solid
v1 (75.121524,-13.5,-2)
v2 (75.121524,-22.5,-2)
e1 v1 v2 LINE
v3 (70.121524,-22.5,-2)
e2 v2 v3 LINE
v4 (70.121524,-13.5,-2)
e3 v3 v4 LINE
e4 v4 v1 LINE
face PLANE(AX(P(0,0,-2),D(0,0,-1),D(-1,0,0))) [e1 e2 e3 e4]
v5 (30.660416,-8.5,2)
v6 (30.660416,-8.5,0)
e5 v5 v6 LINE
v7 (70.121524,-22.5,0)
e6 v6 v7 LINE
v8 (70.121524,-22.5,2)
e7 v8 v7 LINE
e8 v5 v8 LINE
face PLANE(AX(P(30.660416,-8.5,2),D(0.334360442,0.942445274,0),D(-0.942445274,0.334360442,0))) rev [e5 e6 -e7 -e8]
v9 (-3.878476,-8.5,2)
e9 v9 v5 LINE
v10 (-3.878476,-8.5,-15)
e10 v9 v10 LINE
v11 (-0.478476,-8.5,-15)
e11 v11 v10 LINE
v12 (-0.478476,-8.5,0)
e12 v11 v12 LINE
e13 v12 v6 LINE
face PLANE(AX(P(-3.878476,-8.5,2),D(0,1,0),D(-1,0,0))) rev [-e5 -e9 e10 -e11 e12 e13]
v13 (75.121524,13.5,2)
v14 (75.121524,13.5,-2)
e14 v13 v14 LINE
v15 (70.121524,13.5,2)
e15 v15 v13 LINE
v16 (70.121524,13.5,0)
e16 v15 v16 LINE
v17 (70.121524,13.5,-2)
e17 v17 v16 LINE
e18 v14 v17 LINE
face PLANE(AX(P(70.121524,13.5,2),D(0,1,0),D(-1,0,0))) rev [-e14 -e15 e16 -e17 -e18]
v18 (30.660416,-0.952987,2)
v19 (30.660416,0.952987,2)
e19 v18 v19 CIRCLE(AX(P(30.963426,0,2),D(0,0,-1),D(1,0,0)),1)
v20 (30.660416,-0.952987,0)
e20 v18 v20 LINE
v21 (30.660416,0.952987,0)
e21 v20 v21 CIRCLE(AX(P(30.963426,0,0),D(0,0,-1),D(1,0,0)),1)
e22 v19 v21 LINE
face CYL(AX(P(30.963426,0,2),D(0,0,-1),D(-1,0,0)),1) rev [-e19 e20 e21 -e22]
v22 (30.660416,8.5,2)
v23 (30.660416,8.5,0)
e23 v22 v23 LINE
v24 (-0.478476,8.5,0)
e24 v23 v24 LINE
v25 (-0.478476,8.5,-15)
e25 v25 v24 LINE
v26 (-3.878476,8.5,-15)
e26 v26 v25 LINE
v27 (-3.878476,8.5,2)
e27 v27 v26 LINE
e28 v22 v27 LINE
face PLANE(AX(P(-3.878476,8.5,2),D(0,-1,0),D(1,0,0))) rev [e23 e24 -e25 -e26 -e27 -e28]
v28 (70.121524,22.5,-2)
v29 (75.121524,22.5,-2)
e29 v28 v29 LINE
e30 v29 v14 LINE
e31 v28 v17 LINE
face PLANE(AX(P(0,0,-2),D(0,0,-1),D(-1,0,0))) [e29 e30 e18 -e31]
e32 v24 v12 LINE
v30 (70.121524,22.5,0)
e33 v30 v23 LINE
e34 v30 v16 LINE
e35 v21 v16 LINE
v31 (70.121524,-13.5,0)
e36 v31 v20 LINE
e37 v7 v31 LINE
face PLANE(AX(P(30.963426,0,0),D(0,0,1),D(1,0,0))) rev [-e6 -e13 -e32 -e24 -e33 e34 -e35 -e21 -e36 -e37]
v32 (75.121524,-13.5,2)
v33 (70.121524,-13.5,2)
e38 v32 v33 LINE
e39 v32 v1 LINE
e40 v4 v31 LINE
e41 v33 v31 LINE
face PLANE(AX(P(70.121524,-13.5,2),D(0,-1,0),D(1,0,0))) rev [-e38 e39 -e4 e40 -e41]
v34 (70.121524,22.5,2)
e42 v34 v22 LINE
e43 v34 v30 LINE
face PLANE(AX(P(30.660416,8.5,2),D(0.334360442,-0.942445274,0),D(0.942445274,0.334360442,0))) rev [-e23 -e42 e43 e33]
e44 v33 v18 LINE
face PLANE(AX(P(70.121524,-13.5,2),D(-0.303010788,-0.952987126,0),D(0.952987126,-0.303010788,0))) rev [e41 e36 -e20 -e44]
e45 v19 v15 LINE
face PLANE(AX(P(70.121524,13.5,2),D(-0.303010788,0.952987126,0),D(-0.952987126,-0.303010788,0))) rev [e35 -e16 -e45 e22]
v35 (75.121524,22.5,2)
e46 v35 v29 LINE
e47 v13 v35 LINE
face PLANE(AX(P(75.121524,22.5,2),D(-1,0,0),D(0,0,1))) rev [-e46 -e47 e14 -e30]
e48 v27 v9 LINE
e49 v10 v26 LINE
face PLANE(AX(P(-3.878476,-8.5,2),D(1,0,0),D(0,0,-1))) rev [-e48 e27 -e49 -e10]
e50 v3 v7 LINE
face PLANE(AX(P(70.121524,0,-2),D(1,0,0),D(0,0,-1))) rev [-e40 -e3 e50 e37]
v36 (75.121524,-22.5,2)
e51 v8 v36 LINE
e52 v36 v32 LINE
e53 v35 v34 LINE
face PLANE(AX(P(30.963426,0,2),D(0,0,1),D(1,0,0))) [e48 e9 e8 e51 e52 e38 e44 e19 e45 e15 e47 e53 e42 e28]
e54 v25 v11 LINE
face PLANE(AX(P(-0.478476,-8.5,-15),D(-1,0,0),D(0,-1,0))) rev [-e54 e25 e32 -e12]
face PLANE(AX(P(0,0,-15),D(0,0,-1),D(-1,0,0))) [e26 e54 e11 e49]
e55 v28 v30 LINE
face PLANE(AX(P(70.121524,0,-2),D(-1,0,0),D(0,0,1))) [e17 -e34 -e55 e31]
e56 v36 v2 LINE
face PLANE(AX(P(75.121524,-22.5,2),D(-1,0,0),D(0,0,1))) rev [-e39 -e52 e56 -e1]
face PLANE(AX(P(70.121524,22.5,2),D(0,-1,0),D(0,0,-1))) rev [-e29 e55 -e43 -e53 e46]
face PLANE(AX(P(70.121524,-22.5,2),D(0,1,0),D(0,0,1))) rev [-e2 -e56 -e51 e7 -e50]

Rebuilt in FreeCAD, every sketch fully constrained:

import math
import FreeCAD as App
import Part
import Sketcher

V = App.Vector

doc = App.newDocument("Part")
body = doc.addObject("PartDesign::Body", "Body")

sketch1 = body.newObject("Sketcher::SketchObject", "Sketch")
sketch1.AttachmentSupport = (doc.getObject("XY_Plane"), [""])
sketch1.MapMode = "FlatFace"
sketch1.addGeometry(Part.LineSegment(V(70.1, 22.5, 0), V(30.7, 8.5, 0)), False)
sketch1.addGeometry(Part.LineSegment(V(30.7, 8.5, 0), V(-3.9, 8.5, 0)), False)
sketch1.addGeometry(Part.LineSegment(V(-3.9, 8.5, 0), V(-3.9, -8.5, 0)), False)
sketch1.addGeometry(Part.LineSegment(V(-3.9, -8.5, 0), V(30.7, -8.5, 0)), False)
sketch1.addGeometry(Part.LineSegment(V(30.7, -8.5, 0), V(70.1, -22.5, 0)), False)
sketch1.addGeometry(Part.LineSegment(V(70.1, -22.5, 0), V(75.1, -22.5, 0)), False)
sketch1.addGeometry(Part.LineSegment(V(75.1, -22.5, 0), V(75.1, -13.5, 0)), False)
sketch1.addGeometry(Part.LineSegment(V(75.1, -13.5, 0), V(70.1, -13.5, 0)), False)
sketch1.addGeometry(Part.LineSegment(V(70.1, -13.5, 0), V(30.7, -1, 0)), False)
sketch1.addGeometry(Part.ArcOfCircle(Part.Circle(V(31, 0, 0), V(0, 0, 1), 1), math.radians(108), math.radians(252)), False)
sketch1.addGeometry(Part.LineSegment(V(30.7, 1, 0), V(70.1, 13.5, 0)), False)
sketch1.addGeometry(Part.LineSegment(V(70.1, 13.5, 0), V(75.1, 13.5, 0)), False)
sketch1.addGeometry(Part.LineSegment(V(75.1, 13.5, 0), V(75.1, 22.5, 0)), False)
sketch1.addGeometry(Part.LineSegment(V(75.1, 22.5, 0), V(70.1, 22.5, 0)), False)
sketch1.addConstraint(Sketcher.Constraint("Coincident", 0, 2, 1, 1))
sketch1.addConstraint(Sketcher.Constraint("Coincident", 1, 2, 2, 1))
sketch1.addConstraint(Sketcher.Constraint("Coincident", 2, 2, 3, 1))
sketch1.addConstraint(Sketcher.Constraint("Coincident", 3, 2, 4, 1))
sketch1.addConstraint(Sketcher.Constraint("Coincident", 4, 2, 5, 1))
sketch1.addConstraint(Sketcher.Constraint("Coincident", 5, 2, 6, 1))
sketch1.addConstraint(Sketcher.Constraint("Coincident", 6, 2, 7, 1))
sketch1.addConstraint(Sketcher.Constraint("Coincident", 7, 2, 8, 1))
sketch1.addConstraint(Sketcher.Constraint("Tangent", 8, 2, 9, 2))
sketch1.addConstraint(Sketcher.Constraint("Tangent", 9, 1, 10, 1))
sketch1.addConstraint(Sketcher.Constraint("Coincident", 10, 2, 11, 1))
sketch1.addConstraint(Sketcher.Constraint("Coincident", 11, 2, 12, 1))
sketch1.addConstraint(Sketcher.Constraint("Coincident", 12, 2, 13, 1))
sketch1.addConstraint(Sketcher.Constraint("Coincident", 13, 2, 0, 1))
sketch1.addConstraint(Sketcher.Constraint("Horizontal", 1))
sketch1.addConstraint(Sketcher.Constraint("Vertical", 2))
sketch1.addConstraint(Sketcher.Constraint("Horizontal", 3))
sketch1.addConstraint(Sketcher.Constraint("Horizontal", 5))
sketch1.addConstraint(Sketcher.Constraint("Vertical", 6))
sketch1.addConstraint(Sketcher.Constraint("Horizontal", 7))
sketch1.addConstraint(Sketcher.Constraint("Horizontal", 11))
sketch1.addConstraint(Sketcher.Constraint("Vertical", 12))
sketch1.addConstraint(Sketcher.Constraint("Horizontal", 13))
sketch1.addConstraint(Sketcher.Constraint("Symmetric", 0, 2, 3, 2, -1))
sketch1.addConstraint(Sketcher.Constraint("Symmetric", 8, 2, 9, 1, -1))
sketch1.addConstraint(Sketcher.Constraint("Symmetric", 6, 2, 11, 2, -1))
sketch1.addConstraint(Sketcher.Constraint("Symmetric", 4, 2, 13, 2, -1))
sketch1.addConstraint(Sketcher.Constraint("Vertical", 4, 2, 7, 2))
sketch1.addConstraint(Sketcher.Constraint("Vertical", 3, 2, 8, 2))
sketch1.addConstraint(Sketcher.Constraint("Radius", 9, 1.0))
sketch1.addConstraint(Sketcher.Constraint("DistanceX", 5, 1, 5, 2, 5.0))
sketch1.addConstraint(Sketcher.Constraint("DistanceY", 2, 2, 2, 1, 17.0))
sketch1.addConstraint(Sketcher.Constraint("DistanceY", 6, 1, 6, 2, 9.0))
sketch1.addConstraint(Sketcher.Constraint("DistanceY", 4, 2, 3, 2, 14.0))
sketch1.addConstraint(Sketcher.Constraint("DistanceX", 2, 2, 4, 2, 74.0))
sketch1.addConstraint(Sketcher.Constraint("DistanceX", 1, 2, 1, 1, 34.538891))
sketch1.addConstraint(Sketcher.Constraint("DistanceX", -1, 1, 9, 3, 30.963426))
pad1 = body.newObject("PartDesign::Pad", "Pad")
pad1.Profile = sketch1
pad1.Length = 2

sketch2 = body.newObject("Sketcher::SketchObject", "Sketch001")
sketch2.AttachmentSupport = (doc.getObject("XY_Plane"), [""])
sketch2.MapMode = "FlatFace"
sketch2.addGeometry(Part.LineSegment(V(-0.5, 8.5, 0), V(-0.5, -8.5, 0)), False)
sketch2.addGeometry(Part.LineSegment(V(-0.5, -8.5, 0), V(-3.9, -8.5, 0)), False)
sketch2.addGeometry(Part.LineSegment(V(-3.9, -8.5, 0), V(-3.9, 8.5, 0)), False)
sketch2.addGeometry(Part.LineSegment(V(-3.9, 8.5, 0), V(-0.5, 8.5, 0)), False)
sketch2.addConstraint(Sketcher.Constraint("Coincident", 0, 2, 1, 1))
sketch2.addConstraint(Sketcher.Constraint("Coincident", 1, 2, 2, 1))
sketch2.addConstraint(Sketcher.Constraint("Coincident", 2, 2, 3, 1))
sketch2.addConstraint(Sketcher.Constraint("Coincident", 3, 2, 0, 1))
sketch2.addConstraint(Sketcher.Constraint("Vertical", 0))
sketch2.addConstraint(Sketcher.Constraint("Horizontal", 1))
sketch2.addConstraint(Sketcher.Constraint("Vertical", 2))
sketch2.addConstraint(Sketcher.Constraint("Horizontal", 3))
sketch2.addConstraint(Sketcher.Constraint("DistanceY", 0, 2, 0, 1, 17.0))
sketch2.addConstraint(Sketcher.Constraint("DistanceX", 1, 2, 1, 1, 3.4))
sketch2.addConstraint(Sketcher.Constraint("DistanceY", 0, 2, -1, 1, 8.5))
sketch2.addConstraint(Sketcher.Constraint("DistanceX", 0, 2, -1, 1, 0.478476))
pad2 = body.newObject("PartDesign::Pad", "Pad001")
pad2.Profile = sketch2
pad2.Length = 15
pad2.Reversed = True

sketch3 = body.newObject("Sketcher::SketchObject", "Sketch002")
sketch3.AttachmentSupport = (doc.getObject("XY_Plane"), [""])
sketch3.MapMode = "FlatFace"
sketch3.addGeometry(Part.LineSegment(V(75, -14, 0), V(75, -22, 0)), False)
sketch3.addGeometry(Part.LineSegment(V(75, -22, 0), V(70, -22, 0)), False)
sketch3.addGeometry(Part.LineSegment(V(70, -22, 0), V(70, -14, 0)), False)
sketch3.addGeometry(Part.LineSegment(V(70, -14, 0), V(75, -14, 0)), False)
sketch3.addGeometry(Part.LineSegment(V(75, 22, 0), V(75, 14, 0)), False)
sketch3.addGeometry(Part.LineSegment(V(75, 14, 0), V(70, 14, 0)), False)
sketch3.addGeometry(Part.LineSegment(V(70, 14, 0), V(70, 22, 0)), False)
sketch3.addGeometry(Part.LineSegment(V(70, 22, 0), V(75, 22, 0)), False)
sketch3.addConstraint(Sketcher.Constraint("Coincident", 0, 2, 1, 1))
sketch3.addConstraint(Sketcher.Constraint("Coincident", 1, 2, 2, 1))
sketch3.addConstraint(Sketcher.Constraint("Coincident", 2, 2, 3, 1))
sketch3.addConstraint(Sketcher.Constraint("Coincident", 3, 2, 0, 1))
sketch3.addConstraint(Sketcher.Constraint("Coincident", 4, 2, 5, 1))
sketch3.addConstraint(Sketcher.Constraint("Coincident", 5, 2, 6, 1))
sketch3.addConstraint(Sketcher.Constraint("Coincident", 6, 2, 7, 1))
sketch3.addConstraint(Sketcher.Constraint("Coincident", 7, 2, 4, 1))
sketch3.addConstraint(Sketcher.Constraint("Vertical", 0))
sketch3.addConstraint(Sketcher.Constraint("Horizontal", 1))
sketch3.addConstraint(Sketcher.Constraint("Vertical", 2))
sketch3.addConstraint(Sketcher.Constraint("Horizontal", 3))
sketch3.addConstraint(Sketcher.Constraint("Vertical", 4))
sketch3.addConstraint(Sketcher.Constraint("Horizontal", 5))
sketch3.addConstraint(Sketcher.Constraint("Vertical", 6))
sketch3.addConstraint(Sketcher.Constraint("Horizontal", 7))
sketch3.addConstraint(Sketcher.Constraint("Symmetric", 3, 2, 4, 2, -1))
sketch3.addConstraint(Sketcher.Constraint("Symmetric", 1, 2, 6, 2, -1))
sketch3.addConstraint(Sketcher.Constraint("DistanceX", 1, 2, 1, 1, 5.0))
sketch3.addConstraint(Sketcher.Constraint("DistanceY", 0, 2, 0, 1, 9.0))
sketch3.addConstraint(Sketcher.Constraint("DistanceY", 3, 2, 4, 2, 27.0))
sketch3.addConstraint(Sketcher.Constraint("DistanceX", -1, 1, 0, 2, 75.121524))
pad3 = body.newObject("PartDesign::Pad", "Pad002")
pad3.Profile = sketch3
pad3.Length = 2
pad3.Reversed = True

doc.recompute()
